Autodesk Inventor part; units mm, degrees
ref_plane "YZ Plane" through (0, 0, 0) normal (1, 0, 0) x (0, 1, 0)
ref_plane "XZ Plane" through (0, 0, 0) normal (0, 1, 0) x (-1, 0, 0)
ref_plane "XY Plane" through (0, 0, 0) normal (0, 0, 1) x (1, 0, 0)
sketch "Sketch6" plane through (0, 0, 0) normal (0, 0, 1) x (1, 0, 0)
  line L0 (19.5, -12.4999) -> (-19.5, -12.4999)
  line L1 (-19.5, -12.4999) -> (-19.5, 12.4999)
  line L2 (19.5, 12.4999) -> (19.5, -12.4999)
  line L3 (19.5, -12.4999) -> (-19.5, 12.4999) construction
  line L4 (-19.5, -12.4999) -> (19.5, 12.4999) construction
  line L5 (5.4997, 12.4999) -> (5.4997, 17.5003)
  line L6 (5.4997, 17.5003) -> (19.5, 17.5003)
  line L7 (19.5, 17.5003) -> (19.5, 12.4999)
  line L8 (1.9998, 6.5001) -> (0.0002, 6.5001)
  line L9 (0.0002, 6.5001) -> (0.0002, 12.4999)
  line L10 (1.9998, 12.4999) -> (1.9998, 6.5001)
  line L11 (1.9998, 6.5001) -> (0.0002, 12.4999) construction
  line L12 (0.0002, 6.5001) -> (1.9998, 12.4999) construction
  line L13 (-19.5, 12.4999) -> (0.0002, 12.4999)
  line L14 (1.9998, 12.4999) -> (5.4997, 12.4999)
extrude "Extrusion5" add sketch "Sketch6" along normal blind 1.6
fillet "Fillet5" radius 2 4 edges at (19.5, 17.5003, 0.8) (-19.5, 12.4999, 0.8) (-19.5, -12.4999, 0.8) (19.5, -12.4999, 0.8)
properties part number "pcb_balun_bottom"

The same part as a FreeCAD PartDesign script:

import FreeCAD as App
import Part
import Sketcher
from FreeCAD import Vector


def edges_at(feature, points):
    """Names of the edges that pass closest to the given points."""
    edges = feature.Shape.Edges
    near = lambda p: min(range(len(edges)), key=lambda i: edges[i].distToShape(Part.Vertex(*p))[0])
    return sorted({f"Edge{near(p) + 1}" for p in points})


def add_polygon(sketch, points):
    """Adds a closed chain of lines whose ends are joined by coincident constraints."""
    first, n = sketch.GeometryCount, len(points)
    for a, b in zip(points, points[1:] + points[:1]):
        sketch.addGeometry(Part.LineSegment(App.Vector(*a, 0), App.Vector(*b, 0)), False)
    for i in range(n):
        sketch.addConstraint(Sketcher.Constraint("Coincident", first + i, 2, first + (i + 1) % n, 1))

doc = App.newDocument("Part")
params = doc.addObject("Spreadsheet::Sheet", "Params")
for row, (alias, value) in enumerate([
    ("sketch1_width", "39 mm"),
    ("sketch1_width2", "3.5 mm"),
    ("pad1_length", "1.6 mm"),
    ("fillet_radius", "2 mm"),
], start=1):
    params.set(f"A{row}", alias)
    params.set(f"B{row}", "=" + value)
    params.setAlias(f"B{row}", alias)

body = doc.addObject("PartDesign::Body", "Body")

sketch1 = doc.addObject("Sketcher::SketchObject", "Sketch")
body.addObject(sketch1)
sketch1.AttachmentSupport = (doc.XY_Plane, [""])
sketch1.MapMode = "FlatFace"
add_polygon(sketch1, [(-19.5, -12.4999), (19.5, -12.4999), (19.5, 17.5003), (5.4997, 17.5003), (5.4997, 12.4999), (1.9998, 12.4999), (1.9998, 6.5001), (0.0002, 6.5001), (0.0002, 12.4999), (-19.5, 12.4999)])
sketch1.addConstraint([
    Sketcher.Constraint("Horizontal", 0),
    Sketcher.Constraint("Vertical", 1),
    Sketcher.Constraint("Horizontal", 2),
    Sketcher.Constraint("Vertical", 3),
    Sketcher.Constraint("Horizontal", 4),
    Sketcher.Constraint("Vertical", 5),
    Sketcher.Constraint("Horizontal", 6),
    Sketcher.Constraint("Vertical", 7),
    Sketcher.Constraint("Horizontal", 8),
    Sketcher.Constraint("Vertical", 9),
    Sketcher.Constraint("Symmetric", 0, 2, 8, 2, -1, 1),
    Sketcher.Constraint("Horizontal", 4, 2, 7, 2),
    Sketcher.Constraint("DistanceX", 0, 1, 0, 2, 39.0),
    Sketcher.Constraint("DistanceX", 4, 2, 4, 1, 3.5),
    Sketcher.Constraint("DistanceY", 0, 2, 5, 2, 19.0),
    Sketcher.Constraint("DistanceY", 0, 2, -1, 1, 12.5),
    Sketcher.Constraint("DistanceX", 2, 2, 2, 1, 14.0003),
    Sketcher.Constraint("DistanceX", 6, 2, 6, 1, 1.9996),
    Sketcher.Constraint("DistanceY", 1, 1, 1, 2, 30.0002),
])
sketch1.setExpression("Constraints[22]", "Params.sketch1_width")
sketch1.setExpression("Constraints[23]", "Params.sketch1_width2")
pad1 = doc.addObject("PartDesign::Pad", "Pad")
body.addObject(pad1)
pad1.Profile = sketch1
pad1.setExpression("Length", "Params.pad1_length")
doc.recompute()

fillet = doc.addObject("PartDesign::Fillet", "Fillet")
body.addObject(fillet)
fillet.Base = (pad1, edges_at(pad1, [
    (19.5, 17.5, 0.8),
    (-19.5, 12.5, 0.8),
    (-19.5, -12.5, 0.8),
    (19.5, -12.5, 0.8),
]))
fillet.setExpression("Radius", "Params.fillet_radius")

doc.recompute()
